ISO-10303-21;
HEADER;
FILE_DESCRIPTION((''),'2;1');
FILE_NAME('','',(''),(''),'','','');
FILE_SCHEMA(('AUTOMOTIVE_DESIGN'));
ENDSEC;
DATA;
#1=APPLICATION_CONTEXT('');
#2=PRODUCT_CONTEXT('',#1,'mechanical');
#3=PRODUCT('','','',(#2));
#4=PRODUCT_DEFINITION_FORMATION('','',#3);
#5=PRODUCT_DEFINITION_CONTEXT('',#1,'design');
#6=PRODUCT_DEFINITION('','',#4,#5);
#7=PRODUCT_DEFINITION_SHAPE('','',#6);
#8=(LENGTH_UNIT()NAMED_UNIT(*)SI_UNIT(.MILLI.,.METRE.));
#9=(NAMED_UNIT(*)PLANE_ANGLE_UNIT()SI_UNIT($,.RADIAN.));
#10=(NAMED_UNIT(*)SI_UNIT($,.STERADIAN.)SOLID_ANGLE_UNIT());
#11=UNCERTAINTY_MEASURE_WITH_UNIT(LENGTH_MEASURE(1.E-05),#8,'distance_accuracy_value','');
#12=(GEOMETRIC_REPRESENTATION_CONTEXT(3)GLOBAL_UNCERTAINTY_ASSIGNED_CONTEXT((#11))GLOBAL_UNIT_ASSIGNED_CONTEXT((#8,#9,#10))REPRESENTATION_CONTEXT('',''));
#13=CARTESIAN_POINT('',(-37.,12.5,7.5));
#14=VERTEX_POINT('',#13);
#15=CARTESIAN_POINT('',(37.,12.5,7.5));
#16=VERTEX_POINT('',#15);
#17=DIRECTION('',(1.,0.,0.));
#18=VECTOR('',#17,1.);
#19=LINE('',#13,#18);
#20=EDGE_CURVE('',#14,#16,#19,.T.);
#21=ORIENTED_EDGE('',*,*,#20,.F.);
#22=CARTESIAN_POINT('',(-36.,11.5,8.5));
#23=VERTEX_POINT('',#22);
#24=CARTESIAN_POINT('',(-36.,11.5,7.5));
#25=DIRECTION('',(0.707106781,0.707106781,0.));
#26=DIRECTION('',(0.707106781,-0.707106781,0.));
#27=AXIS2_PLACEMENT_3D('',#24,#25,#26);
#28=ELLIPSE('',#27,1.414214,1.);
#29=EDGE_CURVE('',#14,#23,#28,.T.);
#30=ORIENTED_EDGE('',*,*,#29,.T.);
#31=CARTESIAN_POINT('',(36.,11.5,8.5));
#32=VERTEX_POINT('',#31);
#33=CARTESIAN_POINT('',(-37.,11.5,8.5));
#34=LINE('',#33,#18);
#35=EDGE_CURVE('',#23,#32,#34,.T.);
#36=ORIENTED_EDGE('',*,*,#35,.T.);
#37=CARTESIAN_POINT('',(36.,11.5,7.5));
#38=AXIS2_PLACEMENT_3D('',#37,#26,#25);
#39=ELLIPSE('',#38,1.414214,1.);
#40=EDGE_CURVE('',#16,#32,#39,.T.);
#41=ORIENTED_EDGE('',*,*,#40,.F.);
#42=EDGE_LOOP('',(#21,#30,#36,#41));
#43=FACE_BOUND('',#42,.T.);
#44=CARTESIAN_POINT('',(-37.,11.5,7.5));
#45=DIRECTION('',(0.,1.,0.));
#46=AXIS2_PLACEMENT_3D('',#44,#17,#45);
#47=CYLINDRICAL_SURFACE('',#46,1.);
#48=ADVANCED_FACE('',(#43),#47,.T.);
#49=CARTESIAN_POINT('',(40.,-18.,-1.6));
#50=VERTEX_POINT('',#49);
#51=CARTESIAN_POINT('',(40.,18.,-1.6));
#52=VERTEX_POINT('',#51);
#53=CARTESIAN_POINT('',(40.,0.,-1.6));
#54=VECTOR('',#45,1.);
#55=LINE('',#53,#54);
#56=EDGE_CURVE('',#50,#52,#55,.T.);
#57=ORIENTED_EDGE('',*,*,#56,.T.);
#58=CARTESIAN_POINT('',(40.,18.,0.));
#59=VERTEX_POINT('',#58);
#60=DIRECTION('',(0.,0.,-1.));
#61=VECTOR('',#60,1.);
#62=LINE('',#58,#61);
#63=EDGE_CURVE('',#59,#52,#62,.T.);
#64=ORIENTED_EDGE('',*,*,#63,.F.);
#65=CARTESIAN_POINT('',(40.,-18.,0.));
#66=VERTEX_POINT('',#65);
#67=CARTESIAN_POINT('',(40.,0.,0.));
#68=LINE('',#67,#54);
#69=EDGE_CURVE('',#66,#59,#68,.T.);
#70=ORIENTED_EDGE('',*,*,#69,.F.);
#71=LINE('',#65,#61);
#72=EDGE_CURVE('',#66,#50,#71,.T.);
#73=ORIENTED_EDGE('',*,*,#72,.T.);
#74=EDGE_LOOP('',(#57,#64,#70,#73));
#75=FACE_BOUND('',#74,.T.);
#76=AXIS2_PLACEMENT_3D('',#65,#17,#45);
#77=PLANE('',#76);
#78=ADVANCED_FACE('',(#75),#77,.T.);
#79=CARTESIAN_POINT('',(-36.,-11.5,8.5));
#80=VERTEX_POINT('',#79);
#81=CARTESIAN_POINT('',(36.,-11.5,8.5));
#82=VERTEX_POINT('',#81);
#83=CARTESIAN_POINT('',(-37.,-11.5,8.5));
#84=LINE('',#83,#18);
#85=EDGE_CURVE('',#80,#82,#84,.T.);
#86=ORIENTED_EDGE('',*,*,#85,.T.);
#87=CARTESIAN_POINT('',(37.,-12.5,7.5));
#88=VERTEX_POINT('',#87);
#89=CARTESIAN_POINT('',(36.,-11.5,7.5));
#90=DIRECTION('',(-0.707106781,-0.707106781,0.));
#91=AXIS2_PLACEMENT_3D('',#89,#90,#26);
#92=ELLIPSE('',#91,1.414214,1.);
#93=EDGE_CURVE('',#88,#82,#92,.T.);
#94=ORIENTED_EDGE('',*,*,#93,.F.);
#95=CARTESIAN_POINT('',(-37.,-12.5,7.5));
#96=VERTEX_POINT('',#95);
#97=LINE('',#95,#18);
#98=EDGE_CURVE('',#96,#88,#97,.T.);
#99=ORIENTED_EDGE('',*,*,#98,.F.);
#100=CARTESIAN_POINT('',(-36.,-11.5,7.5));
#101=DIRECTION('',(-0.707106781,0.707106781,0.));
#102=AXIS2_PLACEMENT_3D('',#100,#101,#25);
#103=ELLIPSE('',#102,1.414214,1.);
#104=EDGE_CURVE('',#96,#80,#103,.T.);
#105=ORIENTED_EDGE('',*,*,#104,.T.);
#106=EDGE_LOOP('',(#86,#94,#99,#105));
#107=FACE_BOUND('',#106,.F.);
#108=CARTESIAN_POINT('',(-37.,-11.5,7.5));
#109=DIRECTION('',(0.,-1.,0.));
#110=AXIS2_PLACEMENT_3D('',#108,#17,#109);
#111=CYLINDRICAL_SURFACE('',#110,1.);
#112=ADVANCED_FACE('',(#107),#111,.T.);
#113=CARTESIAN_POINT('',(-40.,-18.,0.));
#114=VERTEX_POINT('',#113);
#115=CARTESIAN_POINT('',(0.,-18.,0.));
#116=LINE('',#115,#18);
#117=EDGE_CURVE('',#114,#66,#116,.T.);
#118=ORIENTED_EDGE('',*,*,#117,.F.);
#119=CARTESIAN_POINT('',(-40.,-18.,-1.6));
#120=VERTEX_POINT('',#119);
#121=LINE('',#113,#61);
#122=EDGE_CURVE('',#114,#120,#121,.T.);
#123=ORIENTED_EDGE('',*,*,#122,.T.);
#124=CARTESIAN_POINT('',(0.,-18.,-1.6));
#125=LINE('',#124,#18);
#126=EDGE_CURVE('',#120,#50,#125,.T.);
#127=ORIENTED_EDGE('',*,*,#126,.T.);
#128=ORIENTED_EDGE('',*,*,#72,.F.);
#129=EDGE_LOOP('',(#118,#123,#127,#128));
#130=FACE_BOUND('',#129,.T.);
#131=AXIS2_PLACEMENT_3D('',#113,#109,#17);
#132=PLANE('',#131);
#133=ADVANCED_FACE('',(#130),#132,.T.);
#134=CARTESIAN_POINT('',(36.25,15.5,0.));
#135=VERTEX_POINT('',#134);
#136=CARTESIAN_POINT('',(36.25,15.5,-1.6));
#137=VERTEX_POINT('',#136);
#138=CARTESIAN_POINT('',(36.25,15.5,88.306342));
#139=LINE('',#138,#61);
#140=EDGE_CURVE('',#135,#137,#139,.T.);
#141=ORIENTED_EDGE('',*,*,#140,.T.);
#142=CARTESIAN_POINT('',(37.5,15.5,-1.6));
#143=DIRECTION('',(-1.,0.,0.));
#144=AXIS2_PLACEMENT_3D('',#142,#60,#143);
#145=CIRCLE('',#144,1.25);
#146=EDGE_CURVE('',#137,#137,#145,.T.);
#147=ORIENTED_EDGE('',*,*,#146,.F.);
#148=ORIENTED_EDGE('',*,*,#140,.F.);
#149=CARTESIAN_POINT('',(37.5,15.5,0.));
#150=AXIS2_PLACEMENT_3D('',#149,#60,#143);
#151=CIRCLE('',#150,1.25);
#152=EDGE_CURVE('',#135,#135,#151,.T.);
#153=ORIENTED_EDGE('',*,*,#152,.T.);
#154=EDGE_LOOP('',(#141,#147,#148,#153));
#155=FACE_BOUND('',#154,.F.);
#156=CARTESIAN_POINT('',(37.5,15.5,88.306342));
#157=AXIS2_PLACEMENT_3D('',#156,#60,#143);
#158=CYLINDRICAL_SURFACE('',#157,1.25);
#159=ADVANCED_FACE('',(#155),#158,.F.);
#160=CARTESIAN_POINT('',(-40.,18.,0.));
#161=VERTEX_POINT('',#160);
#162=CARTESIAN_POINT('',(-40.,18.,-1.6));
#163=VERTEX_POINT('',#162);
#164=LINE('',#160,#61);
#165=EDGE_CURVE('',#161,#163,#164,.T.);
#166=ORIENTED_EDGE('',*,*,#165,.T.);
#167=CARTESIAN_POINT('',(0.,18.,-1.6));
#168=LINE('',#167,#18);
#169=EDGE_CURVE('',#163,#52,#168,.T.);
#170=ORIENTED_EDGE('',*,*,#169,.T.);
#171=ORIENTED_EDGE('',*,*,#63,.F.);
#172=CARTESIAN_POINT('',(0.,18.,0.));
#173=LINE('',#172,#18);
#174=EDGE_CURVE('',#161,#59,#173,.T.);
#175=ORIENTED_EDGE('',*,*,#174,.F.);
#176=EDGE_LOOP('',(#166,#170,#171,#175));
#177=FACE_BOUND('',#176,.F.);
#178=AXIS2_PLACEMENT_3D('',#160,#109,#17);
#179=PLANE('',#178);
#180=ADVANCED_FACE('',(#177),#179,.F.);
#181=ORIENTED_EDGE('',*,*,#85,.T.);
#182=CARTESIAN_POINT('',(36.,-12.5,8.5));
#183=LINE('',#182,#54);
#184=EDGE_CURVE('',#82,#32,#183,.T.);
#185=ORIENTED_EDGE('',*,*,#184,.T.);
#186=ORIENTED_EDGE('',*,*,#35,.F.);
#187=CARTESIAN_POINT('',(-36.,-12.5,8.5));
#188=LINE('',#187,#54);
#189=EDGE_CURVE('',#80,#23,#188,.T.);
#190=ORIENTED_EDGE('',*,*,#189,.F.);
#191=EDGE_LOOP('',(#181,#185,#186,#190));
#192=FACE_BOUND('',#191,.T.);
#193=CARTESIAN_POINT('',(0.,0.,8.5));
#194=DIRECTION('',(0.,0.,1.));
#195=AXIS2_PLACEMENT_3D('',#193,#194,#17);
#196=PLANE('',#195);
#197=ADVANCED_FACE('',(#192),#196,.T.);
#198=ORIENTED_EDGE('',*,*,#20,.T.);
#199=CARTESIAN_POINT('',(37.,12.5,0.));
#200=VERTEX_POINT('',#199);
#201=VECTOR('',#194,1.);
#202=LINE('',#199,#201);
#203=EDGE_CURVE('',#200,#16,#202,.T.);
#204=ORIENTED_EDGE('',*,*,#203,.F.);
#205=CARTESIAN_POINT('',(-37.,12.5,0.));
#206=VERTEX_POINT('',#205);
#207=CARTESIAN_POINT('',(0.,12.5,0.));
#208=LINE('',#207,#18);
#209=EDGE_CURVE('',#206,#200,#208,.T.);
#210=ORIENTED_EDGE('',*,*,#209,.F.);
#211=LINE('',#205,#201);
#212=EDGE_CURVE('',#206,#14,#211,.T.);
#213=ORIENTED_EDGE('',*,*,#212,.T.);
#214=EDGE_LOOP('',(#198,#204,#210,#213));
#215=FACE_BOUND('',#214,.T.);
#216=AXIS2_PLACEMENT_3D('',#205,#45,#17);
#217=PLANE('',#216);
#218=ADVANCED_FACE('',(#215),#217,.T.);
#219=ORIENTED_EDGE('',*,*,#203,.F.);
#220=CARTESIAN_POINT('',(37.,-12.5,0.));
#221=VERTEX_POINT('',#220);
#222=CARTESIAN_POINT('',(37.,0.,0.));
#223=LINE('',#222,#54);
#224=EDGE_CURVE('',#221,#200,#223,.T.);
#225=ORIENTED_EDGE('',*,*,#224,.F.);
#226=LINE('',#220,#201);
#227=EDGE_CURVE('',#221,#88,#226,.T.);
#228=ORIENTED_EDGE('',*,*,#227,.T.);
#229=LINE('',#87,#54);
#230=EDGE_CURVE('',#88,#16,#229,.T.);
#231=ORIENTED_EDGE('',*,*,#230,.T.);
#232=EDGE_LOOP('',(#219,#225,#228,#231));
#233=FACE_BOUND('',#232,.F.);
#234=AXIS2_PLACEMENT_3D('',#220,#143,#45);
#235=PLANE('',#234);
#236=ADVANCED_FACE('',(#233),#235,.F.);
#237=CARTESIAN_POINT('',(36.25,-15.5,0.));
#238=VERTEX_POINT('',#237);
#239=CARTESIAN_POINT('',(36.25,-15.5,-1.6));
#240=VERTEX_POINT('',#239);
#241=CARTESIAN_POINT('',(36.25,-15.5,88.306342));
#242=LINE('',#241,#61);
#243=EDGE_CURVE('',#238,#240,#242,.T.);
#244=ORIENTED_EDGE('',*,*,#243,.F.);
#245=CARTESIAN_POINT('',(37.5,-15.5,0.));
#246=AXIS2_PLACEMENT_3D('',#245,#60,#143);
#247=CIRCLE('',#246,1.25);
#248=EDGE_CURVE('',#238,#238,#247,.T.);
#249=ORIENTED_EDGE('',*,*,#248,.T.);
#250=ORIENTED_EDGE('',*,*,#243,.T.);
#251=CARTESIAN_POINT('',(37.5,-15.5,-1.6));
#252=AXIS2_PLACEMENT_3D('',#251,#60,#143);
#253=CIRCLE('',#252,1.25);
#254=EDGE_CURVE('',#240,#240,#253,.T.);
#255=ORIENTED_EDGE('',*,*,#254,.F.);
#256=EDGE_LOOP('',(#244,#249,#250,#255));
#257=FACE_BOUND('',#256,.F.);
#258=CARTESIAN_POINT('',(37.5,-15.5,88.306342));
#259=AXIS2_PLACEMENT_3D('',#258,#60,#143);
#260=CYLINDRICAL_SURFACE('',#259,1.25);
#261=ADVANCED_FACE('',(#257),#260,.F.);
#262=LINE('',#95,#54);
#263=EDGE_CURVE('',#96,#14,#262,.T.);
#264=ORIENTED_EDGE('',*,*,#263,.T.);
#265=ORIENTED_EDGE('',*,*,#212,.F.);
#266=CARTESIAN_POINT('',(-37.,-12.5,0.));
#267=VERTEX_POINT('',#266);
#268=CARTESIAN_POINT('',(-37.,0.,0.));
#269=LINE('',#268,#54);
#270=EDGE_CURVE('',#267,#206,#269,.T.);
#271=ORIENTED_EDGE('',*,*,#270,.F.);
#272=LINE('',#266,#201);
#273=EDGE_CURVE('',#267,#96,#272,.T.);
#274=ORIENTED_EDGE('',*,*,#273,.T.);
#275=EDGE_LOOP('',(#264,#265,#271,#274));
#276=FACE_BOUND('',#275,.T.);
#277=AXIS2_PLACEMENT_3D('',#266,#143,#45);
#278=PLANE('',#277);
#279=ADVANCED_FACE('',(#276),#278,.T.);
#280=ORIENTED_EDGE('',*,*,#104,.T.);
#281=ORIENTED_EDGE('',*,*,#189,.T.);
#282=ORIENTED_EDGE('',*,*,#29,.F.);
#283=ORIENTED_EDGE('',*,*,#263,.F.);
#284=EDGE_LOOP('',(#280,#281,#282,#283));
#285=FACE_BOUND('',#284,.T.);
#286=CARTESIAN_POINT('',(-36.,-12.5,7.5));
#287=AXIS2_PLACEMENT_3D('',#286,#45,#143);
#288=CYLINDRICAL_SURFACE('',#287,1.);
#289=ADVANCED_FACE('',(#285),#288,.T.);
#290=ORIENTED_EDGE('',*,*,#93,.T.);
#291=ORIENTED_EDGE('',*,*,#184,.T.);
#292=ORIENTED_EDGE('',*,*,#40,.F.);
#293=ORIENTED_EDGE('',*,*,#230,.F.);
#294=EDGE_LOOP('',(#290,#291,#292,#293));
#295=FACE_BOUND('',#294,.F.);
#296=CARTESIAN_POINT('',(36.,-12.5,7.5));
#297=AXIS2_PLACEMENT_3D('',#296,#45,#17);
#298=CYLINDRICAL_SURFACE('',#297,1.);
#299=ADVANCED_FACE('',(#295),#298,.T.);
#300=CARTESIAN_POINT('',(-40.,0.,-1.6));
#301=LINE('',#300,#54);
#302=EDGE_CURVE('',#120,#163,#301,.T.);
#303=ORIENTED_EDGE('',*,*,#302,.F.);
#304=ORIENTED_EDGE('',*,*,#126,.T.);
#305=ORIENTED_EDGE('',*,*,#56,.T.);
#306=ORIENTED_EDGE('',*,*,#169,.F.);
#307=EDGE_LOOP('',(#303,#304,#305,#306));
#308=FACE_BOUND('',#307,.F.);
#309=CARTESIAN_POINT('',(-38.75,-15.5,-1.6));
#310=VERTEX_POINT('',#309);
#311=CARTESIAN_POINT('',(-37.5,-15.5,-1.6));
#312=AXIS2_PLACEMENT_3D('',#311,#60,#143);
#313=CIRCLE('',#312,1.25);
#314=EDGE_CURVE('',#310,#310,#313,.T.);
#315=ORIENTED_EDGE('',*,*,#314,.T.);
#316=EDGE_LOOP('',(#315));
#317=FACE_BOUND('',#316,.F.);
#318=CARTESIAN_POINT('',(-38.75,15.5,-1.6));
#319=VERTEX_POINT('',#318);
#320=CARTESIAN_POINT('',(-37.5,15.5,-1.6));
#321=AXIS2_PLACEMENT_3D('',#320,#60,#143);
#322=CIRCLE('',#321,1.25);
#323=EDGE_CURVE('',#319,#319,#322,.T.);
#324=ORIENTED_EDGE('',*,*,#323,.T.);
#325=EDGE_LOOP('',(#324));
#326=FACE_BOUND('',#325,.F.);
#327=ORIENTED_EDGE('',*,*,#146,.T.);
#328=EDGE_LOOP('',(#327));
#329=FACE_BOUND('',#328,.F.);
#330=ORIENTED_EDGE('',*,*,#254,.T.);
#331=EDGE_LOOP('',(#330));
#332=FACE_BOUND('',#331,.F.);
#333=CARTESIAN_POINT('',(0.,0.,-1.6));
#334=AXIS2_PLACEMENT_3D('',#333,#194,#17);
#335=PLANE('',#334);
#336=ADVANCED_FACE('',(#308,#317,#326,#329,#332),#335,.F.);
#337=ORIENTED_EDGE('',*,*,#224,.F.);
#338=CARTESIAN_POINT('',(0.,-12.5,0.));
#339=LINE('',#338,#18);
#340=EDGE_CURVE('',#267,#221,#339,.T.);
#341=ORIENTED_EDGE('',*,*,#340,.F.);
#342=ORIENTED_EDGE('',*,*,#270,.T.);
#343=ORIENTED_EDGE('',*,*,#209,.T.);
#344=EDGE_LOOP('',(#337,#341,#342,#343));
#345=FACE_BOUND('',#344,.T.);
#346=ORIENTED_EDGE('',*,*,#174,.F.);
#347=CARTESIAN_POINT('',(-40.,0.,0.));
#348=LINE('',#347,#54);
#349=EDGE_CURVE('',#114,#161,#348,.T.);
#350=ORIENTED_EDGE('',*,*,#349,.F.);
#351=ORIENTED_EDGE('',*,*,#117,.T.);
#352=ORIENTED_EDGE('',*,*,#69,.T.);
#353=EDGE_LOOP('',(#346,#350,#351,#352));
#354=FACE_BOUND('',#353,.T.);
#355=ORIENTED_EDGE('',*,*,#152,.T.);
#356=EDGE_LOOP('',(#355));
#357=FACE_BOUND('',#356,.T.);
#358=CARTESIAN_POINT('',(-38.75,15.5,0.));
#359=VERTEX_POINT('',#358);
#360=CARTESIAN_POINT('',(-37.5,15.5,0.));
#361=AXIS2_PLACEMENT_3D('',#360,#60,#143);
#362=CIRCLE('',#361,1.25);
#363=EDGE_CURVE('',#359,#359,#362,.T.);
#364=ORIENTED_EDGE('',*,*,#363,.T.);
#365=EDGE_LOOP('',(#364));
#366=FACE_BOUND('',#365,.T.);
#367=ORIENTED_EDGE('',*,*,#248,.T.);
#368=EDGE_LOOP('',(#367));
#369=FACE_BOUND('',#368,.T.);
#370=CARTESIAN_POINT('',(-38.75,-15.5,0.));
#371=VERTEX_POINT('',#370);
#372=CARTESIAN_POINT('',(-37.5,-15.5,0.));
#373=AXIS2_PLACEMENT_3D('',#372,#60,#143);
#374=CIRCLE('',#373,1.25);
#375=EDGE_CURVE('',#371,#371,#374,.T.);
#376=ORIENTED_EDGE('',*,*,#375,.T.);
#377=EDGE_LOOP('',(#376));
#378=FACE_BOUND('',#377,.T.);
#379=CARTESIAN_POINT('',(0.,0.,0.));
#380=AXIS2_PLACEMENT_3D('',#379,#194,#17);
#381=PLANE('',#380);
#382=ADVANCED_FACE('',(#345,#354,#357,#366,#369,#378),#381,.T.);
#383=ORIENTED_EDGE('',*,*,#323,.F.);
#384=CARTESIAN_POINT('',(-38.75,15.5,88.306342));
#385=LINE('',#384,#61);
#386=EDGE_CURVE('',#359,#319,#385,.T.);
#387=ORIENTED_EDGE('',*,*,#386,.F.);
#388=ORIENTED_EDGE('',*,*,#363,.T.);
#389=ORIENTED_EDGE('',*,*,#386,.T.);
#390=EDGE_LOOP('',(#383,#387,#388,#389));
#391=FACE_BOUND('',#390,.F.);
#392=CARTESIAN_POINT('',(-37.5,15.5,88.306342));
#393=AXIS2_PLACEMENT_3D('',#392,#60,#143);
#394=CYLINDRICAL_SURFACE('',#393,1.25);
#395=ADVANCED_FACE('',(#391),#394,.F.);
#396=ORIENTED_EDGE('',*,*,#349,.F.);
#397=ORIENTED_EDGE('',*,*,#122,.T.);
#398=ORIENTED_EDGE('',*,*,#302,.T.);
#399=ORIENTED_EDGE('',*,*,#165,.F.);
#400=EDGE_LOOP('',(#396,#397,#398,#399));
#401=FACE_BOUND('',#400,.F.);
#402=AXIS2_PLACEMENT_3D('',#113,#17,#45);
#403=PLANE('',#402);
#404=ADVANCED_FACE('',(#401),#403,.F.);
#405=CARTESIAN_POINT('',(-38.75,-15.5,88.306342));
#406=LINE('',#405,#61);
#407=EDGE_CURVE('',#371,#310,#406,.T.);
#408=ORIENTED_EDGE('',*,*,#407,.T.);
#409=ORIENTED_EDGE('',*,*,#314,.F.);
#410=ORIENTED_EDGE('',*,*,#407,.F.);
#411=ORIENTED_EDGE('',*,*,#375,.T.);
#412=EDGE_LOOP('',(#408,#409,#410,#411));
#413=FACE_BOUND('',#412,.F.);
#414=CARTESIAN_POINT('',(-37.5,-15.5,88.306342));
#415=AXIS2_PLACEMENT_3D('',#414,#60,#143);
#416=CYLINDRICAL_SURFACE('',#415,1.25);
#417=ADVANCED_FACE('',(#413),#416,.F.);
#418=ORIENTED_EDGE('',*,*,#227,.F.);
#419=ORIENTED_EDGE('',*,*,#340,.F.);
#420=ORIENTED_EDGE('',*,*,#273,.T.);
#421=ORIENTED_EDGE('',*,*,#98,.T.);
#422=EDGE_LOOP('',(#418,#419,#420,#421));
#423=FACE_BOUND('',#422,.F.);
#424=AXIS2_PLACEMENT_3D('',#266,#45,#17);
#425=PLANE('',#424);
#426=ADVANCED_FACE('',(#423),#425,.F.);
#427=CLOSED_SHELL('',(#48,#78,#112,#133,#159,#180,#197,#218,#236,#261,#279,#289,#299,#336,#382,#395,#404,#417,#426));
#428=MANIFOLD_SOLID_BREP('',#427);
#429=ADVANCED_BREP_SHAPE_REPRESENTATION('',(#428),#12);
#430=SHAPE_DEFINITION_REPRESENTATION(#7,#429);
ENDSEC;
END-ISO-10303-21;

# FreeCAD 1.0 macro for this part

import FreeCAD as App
import Part
import Sketcher


def edges_at(feature, points):
    """Names of the edges that pass closest to the given points."""
    edges = feature.Shape.Edges
    near = lambda p: min(range(len(edges)), key=lambda i: edges[i].distToShape(Part.Vertex(*p))[0])
    return sorted({f"Edge{near(p) + 1}" for p in points})

doc = App.newDocument("Part")
params = doc.addObject("Spreadsheet::Sheet", "Params")
for row, (alias, value) in enumerate([
    ("sketch1_width", "80 mm"),
    ("sketch1_height", "36 mm"),
    ("pad1_length", "1.6 mm"),
    ("sketch2_width", "74 mm"),
    ("sketch2_height", "25 mm"),
    ("pad2_length", "8.5 mm"),
    ("sketch3_diameter", "2.5 mm"),
    ("hole_diameter", "2.5 mm"),
    ("fillet_radius", "1 mm"),
], start=1):
    params.set(f"A{row}", alias)
    params.set(f"B{row}", "=" + value)
    params.setAlias(f"B{row}", alias)

body = doc.addObject("PartDesign::Body", "Body")

# Sketch on XY plane
sketch1 = body.newObject("Sketcher::SketchObject", "Sketch")
sketch1.AttachmentSupport = (doc.getObject("XY_Plane"), [""])
sketch1.MapMode = "FlatFace"
sketch1.addGeometry([
    Part.LineSegment(App.Vector(-40, 18, 0), App.Vector(-40, -18, 0)),
    Part.LineSegment(App.Vector(-40, -18, 0), App.Vector(40, -18, 0)),
    Part.LineSegment(App.Vector(40, -18, 0), App.Vector(40, 18, 0)),
    Part.LineSegment(App.Vector(40, 18, 0), App.Vector(-40, 18, 0)),
], False)
sketch1.addConstraint([
    Sketcher.Constraint("Coincident", 0, 2, 1, 1),
    Sketcher.Constraint("Coincident", 1, 2, 2, 1),
    Sketcher.Constraint("Coincident", 2, 2, 3, 1),
    Sketcher.Constraint("Coincident", 3, 2, 0, 1),
    Sketcher.Constraint("Vertical", 0),
    Sketcher.Constraint("Horizontal", 1),
    Sketcher.Constraint("Vertical", 2),
    Sketcher.Constraint("Horizontal", 3),
    Sketcher.Constraint("Symmetric", 0, 2, 2, 2, -1, 1),
    Sketcher.Constraint("DistanceX", 1, 1, 1, 2, 80.0),
    Sketcher.Constraint("DistanceY", 0, 2, 0, 1, 36.0),
])
sketch1.setExpression("Constraints[9]", "Params.sketch1_width")
sketch1.setExpression("Constraints[10]", "Params.sketch1_height")
pad1 = body.newObject("PartDesign::Pad", "Pad")
pad1.Profile = sketch1
pad1.setExpression("Length", "Params.pad1_length")
pad1.Reversed = True

# Sketch on XY plane
sketch2 = body.newObject("Sketcher::SketchObject", "Sketch001")
sketch2.AttachmentSupport = (doc.getObject("XY_Plane"), [""])
sketch2.MapMode = "FlatFace"
sketch2.addGeometry([
    Part.LineSegment(App.Vector(-37, 12.5, 0), App.Vector(-37, -12.5, 0)),
    Part.LineSegment(App.Vector(-37, -12.5, 0), App.Vector(37, -12.5, 0)),
    Part.LineSegment(App.Vector(37, -12.5, 0), App.Vector(37, 12.5, 0)),
    Part.LineSegment(App.Vector(37, 12.5, 0), App.Vector(-37, 12.5, 0)),
], False)
sketch2.addConstraint([
    Sketcher.Constraint("Coincident", 0, 2, 1, 1),
    Sketcher.Constraint("Coincident", 1, 2, 2, 1),
    Sketcher.Constraint("Coincident", 2, 2, 3, 1),
    Sketcher.Constraint("Coincident", 3, 2, 0, 1),
    Sketcher.Constraint("Vertical", 0),
    Sketcher.Constraint("Horizontal", 1),
    Sketcher.Constraint("Vertical", 2),
    Sketcher.Constraint("Horizontal", 3),
    Sketcher.Constraint("Symmetric", 0, 2, 2, 2, -1, 1),
    Sketcher.Constraint("DistanceX", 1, 1, 1, 2, 74.0),
    Sketcher.Constraint("DistanceY", 0, 2, 0, 1, 25.0),
])
sketch2.setExpression("Constraints[9]", "Params.sketch2_width")
sketch2.setExpression("Constraints[10]", "Params.sketch2_height")
pad2 = body.newObject("PartDesign::Pad", "Pad001")
pad2.Profile = sketch2
pad2.setExpression("Length", "Params.pad2_length")

# Sketch on XY plane
sketch3 = body.newObject("Sketcher::SketchObject", "Sketch002")
sketch3.AttachmentSupport = (doc.getObject("XY_Plane"), [""])
sketch3.MapMode = "FlatFace"
sketch3.addGeometry([
    Part.Circle(App.Vector(-37.5, 15.5, 0), App.Vector(0, 0, 1), 1.25),
    Part.Circle(App.Vector(37.5, 15.5, 0), App.Vector(0, 0, 1), 1.25),
    Part.Circle(App.Vector(37.5, -15.5, 0), App.Vector(0, 0, 1), 1.25),
    Part.Circle(App.Vector(-37.5, -15.5, 0), App.Vector(0, 0, 1), 1.25),
], False)
sketch3.addConstraint([
    Sketcher.Constraint("Equal", 0, 1),
    Sketcher.Constraint("Equal", 1, 2),
    Sketcher.Constraint("Equal", 2, 3),
    Sketcher.Constraint("Symmetric", 0, 3, 2, 3, -1, 1),
    Sketcher.Constraint("Symmetric", 1, 3, 3, 3, -1, 1),
    Sketcher.Constraint("Symmetric", 0, 3, 1, 3, -2),
    Sketcher.Constraint("Diameter", 0, 2.5),
    Sketcher.Constraint("DistanceX", 0, 3, 1, 3, 75.0),
    Sketcher.Constraint("DistanceY", 2, 3, 1, 3, 31.0),
])
sketch3.setExpression("Constraints[6]", "Params.sketch3_diameter")
doc.recompute()
hole = body.newObject("PartDesign::Hole", "Hole")
hole.Profile = sketch3
hole.ThreadType = "None"
hole.setExpression("Diameter", "Params.hole_diameter")
hole.DepthType = "ThroughAll"
doc.recompute()

fillet = body.newObject("PartDesign::Fillet", "Fillet")
fillet.Base = (hole, edges_at(hole, [
    (0, 12.5, 8.5),
    (-37, 0, 8.5),
    (0, -12.5, 8.5),
    (37, 0, 8.5),
]))
fillet.setExpression("Radius", "Params.fillet_radius")

doc.recompute()
